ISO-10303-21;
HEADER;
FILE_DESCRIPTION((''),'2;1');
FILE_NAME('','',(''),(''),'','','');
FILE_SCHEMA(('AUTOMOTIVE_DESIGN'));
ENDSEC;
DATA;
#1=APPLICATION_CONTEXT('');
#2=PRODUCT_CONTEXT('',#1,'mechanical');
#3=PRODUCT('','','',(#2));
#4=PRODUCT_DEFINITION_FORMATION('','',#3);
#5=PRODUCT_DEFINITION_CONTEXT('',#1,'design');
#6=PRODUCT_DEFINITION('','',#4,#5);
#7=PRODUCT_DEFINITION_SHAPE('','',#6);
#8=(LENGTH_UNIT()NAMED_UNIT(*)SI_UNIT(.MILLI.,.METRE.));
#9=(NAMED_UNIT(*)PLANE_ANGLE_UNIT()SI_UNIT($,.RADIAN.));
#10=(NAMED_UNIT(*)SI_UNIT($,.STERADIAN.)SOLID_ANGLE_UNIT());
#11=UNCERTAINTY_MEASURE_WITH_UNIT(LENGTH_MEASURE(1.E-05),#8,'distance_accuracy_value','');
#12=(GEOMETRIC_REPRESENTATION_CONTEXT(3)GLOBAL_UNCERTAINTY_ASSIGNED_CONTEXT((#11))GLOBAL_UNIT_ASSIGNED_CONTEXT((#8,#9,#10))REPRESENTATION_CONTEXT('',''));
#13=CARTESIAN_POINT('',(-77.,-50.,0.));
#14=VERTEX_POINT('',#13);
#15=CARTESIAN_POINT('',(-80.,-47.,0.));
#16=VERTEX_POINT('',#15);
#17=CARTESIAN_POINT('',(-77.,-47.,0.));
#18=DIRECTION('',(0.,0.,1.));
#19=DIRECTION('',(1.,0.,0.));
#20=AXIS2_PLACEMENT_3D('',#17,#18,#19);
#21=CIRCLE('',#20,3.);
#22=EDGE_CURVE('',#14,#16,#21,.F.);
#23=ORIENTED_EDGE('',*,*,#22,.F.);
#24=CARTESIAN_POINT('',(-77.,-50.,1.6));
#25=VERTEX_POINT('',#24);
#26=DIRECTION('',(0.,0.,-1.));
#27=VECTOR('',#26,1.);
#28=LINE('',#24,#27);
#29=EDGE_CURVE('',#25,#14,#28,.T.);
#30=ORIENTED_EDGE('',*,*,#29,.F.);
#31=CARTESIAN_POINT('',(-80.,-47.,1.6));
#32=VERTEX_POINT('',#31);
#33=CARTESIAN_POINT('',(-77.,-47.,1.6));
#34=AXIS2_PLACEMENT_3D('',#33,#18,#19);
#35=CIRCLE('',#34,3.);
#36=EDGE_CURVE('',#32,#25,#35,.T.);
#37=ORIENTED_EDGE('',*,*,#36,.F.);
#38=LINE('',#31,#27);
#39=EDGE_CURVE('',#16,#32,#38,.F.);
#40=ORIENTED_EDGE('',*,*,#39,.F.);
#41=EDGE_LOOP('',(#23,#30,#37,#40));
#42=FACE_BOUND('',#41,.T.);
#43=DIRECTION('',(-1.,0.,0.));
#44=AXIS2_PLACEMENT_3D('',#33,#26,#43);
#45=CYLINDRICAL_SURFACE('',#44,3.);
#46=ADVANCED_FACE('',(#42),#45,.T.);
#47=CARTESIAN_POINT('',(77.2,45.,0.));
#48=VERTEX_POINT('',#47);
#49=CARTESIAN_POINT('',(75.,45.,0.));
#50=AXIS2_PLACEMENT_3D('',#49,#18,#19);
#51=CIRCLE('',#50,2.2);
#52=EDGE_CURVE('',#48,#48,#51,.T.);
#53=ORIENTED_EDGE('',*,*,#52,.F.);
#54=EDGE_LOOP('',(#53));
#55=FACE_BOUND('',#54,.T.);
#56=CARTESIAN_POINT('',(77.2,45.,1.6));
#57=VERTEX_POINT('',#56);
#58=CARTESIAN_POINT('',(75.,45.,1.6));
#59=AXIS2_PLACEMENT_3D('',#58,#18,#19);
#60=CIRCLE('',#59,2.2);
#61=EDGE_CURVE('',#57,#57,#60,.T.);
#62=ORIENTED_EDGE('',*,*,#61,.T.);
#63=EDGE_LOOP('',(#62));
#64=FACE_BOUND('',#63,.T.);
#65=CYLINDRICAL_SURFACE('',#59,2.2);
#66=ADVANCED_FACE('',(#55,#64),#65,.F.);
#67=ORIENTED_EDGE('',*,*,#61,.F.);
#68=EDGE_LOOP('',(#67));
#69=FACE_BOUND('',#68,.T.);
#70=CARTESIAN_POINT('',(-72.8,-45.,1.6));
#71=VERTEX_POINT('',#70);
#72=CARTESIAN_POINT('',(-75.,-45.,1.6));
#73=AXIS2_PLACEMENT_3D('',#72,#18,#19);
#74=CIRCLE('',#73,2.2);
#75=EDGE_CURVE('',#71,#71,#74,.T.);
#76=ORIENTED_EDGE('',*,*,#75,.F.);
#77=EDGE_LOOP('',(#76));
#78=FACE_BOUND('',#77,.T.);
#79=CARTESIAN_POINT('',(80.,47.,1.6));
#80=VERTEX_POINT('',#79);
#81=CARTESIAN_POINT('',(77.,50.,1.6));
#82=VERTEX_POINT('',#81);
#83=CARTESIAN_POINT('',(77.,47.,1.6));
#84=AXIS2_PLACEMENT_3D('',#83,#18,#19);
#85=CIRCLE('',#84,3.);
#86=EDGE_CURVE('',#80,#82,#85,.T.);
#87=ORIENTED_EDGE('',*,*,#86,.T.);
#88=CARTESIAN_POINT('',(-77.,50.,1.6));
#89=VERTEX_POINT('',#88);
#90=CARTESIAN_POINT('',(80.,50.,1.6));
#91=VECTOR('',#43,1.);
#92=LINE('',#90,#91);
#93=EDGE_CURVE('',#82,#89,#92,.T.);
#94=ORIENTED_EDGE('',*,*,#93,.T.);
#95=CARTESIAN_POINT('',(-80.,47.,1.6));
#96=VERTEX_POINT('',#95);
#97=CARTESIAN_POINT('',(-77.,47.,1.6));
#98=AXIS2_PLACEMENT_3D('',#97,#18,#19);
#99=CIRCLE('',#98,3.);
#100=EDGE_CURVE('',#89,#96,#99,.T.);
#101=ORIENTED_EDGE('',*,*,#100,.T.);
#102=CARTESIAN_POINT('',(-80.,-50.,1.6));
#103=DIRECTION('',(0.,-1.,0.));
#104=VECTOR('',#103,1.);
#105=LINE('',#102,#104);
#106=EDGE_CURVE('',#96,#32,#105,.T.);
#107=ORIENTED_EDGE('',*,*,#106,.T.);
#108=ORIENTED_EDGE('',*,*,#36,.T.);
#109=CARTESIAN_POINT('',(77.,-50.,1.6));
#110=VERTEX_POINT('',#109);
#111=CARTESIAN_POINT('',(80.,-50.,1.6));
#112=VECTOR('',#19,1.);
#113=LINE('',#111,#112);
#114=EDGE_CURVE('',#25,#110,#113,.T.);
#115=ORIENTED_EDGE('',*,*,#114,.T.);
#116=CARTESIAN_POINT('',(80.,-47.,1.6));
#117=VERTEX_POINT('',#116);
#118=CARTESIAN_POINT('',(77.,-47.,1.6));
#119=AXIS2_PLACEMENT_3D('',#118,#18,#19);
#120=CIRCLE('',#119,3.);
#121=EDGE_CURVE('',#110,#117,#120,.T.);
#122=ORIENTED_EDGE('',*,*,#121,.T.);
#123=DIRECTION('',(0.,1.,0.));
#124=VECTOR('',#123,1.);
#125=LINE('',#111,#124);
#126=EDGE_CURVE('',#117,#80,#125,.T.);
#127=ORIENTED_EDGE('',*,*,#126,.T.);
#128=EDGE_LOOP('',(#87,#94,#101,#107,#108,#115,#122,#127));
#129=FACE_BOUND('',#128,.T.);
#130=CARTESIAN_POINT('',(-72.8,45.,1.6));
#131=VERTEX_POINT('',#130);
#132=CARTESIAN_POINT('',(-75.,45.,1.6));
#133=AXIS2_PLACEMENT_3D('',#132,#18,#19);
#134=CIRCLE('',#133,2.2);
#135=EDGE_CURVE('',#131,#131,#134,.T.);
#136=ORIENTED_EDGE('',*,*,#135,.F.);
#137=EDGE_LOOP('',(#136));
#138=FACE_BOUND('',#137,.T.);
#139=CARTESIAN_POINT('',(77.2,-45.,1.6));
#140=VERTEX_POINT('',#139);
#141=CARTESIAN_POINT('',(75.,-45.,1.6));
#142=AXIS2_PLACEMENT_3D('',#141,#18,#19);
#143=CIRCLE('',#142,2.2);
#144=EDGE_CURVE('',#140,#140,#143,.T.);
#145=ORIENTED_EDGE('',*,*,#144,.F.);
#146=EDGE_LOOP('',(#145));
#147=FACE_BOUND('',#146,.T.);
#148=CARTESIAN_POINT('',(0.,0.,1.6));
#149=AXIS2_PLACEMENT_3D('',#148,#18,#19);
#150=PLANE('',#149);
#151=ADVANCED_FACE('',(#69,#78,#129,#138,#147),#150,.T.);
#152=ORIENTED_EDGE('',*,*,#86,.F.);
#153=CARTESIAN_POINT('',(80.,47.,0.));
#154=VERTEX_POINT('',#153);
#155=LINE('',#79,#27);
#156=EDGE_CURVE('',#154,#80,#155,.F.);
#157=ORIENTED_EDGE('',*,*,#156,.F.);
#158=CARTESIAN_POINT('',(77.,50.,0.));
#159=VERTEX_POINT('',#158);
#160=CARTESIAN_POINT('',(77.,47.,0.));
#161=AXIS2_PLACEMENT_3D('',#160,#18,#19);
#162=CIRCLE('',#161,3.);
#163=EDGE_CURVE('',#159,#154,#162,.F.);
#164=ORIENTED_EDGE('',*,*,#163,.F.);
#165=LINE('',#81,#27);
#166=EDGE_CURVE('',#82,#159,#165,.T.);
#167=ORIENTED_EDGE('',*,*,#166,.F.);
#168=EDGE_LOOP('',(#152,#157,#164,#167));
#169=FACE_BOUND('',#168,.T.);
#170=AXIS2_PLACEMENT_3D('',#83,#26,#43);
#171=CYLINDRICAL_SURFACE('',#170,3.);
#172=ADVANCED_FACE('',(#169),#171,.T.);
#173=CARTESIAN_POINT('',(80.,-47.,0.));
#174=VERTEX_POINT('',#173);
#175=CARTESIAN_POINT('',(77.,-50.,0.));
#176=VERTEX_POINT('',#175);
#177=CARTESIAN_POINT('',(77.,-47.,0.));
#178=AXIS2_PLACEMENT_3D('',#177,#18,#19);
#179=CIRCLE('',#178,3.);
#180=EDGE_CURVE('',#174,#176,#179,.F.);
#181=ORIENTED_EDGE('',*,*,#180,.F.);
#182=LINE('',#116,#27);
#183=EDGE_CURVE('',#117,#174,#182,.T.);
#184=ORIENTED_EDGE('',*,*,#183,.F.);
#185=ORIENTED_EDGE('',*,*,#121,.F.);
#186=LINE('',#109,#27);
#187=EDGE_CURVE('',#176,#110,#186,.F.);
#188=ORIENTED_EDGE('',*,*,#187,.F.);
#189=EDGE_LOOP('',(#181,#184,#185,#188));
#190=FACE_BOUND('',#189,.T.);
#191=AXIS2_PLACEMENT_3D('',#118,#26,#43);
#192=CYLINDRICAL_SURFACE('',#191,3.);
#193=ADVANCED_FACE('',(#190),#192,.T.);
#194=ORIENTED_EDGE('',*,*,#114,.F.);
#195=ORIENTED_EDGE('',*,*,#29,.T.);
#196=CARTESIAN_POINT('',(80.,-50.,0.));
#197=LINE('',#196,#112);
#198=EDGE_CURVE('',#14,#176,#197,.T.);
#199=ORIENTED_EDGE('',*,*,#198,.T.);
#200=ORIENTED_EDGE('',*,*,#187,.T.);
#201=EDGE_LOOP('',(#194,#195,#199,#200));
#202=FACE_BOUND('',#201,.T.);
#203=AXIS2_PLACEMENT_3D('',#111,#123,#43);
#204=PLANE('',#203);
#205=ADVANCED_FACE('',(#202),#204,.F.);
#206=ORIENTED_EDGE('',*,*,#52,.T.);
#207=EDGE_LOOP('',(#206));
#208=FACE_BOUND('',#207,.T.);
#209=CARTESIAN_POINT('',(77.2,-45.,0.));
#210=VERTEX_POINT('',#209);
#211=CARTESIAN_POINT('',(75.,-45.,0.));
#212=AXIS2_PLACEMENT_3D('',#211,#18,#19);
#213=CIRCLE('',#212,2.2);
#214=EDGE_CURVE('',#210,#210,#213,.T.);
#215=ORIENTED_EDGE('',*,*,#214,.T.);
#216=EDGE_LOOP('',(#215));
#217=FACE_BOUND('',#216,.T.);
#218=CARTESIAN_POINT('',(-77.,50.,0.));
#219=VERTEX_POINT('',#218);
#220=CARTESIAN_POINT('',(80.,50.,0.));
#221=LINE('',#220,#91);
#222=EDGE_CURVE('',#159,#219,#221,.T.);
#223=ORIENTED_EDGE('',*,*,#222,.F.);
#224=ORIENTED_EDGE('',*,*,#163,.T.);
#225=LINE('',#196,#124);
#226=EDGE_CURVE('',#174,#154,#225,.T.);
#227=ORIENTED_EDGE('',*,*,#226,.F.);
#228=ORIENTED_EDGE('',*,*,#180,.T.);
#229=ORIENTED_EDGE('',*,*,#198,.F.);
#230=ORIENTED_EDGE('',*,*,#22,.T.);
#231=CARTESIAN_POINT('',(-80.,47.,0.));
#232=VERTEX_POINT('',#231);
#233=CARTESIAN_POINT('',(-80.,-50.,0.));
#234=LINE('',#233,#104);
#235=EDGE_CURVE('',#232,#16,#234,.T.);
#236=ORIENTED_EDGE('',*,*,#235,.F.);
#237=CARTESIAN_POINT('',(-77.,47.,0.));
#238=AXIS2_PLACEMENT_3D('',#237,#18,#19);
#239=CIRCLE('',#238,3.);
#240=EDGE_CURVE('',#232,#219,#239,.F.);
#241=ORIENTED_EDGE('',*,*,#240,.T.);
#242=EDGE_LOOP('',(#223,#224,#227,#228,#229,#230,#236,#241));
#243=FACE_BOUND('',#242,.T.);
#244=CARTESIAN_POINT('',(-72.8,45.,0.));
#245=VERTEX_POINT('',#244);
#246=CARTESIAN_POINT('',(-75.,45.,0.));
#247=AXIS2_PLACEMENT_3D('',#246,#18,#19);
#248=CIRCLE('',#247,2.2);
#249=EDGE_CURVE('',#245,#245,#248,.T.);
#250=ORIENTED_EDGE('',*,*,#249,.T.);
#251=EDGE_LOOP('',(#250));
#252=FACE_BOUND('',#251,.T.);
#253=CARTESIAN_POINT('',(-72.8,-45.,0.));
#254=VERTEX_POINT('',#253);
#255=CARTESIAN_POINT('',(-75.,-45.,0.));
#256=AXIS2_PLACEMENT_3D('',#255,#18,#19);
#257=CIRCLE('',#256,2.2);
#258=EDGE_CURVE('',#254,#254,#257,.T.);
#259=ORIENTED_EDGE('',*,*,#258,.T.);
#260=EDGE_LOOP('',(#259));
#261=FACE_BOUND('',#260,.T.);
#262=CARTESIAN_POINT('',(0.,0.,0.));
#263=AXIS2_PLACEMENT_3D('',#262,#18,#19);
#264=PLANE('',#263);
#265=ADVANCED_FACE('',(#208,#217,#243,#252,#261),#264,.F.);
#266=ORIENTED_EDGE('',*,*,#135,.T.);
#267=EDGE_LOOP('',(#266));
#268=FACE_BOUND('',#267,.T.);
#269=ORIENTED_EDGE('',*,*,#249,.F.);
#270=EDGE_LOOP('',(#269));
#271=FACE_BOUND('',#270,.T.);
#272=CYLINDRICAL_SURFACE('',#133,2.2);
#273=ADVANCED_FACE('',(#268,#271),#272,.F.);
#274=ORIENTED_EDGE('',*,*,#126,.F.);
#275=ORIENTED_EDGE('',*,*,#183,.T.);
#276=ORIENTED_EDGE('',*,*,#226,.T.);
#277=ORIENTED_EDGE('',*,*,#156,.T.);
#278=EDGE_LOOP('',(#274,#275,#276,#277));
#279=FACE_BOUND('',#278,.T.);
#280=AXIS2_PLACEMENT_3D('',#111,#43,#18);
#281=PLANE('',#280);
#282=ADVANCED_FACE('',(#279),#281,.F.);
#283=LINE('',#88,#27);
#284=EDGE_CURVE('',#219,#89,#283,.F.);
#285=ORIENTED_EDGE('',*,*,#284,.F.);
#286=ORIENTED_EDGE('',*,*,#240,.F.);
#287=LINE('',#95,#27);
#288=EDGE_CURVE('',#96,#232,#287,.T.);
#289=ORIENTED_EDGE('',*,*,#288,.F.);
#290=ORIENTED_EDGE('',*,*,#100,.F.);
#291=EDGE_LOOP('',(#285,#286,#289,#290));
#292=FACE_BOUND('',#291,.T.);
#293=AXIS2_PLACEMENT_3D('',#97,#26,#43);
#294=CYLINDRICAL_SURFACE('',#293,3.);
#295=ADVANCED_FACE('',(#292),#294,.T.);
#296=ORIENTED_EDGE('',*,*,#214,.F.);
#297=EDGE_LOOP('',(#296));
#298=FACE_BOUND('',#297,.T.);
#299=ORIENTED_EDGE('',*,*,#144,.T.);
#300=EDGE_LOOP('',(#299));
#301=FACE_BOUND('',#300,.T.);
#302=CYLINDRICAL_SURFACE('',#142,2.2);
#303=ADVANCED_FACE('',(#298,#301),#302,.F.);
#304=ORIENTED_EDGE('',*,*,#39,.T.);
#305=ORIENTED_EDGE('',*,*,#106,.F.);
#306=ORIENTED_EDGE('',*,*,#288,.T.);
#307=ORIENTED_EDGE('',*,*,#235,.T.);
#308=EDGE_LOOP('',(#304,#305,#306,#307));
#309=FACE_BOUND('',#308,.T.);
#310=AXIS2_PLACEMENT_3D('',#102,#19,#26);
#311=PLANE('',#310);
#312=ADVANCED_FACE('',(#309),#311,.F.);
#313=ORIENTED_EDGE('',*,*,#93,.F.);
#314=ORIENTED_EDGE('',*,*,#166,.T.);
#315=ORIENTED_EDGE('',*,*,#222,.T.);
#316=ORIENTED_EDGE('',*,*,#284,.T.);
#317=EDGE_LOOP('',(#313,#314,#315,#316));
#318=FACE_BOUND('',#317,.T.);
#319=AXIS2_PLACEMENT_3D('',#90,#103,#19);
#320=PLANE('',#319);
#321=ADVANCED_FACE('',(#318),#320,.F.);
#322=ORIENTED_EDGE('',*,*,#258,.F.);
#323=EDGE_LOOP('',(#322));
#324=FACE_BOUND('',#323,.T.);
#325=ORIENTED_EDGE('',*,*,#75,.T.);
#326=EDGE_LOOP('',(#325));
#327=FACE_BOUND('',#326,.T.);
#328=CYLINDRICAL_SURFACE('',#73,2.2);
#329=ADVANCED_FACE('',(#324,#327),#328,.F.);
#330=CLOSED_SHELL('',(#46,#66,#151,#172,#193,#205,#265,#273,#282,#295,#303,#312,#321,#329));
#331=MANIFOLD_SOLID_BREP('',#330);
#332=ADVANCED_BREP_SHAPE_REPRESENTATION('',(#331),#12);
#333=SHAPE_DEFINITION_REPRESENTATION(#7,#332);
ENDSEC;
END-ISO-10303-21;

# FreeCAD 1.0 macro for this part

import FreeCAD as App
import Part
import Sketcher
from FreeCAD import Vector


def edges_at(feature, points):
    """Names of the edges that pass closest to the given points."""
    edges = feature.Shape.Edges
    near = lambda p: min(range(len(edges)), key=lambda i: edges[i].distToShape(Part.Vertex(*p))[0])
    return sorted({f"Edge{near(p) + 1}" for p in points})


def add_polygon(sketch, points):
    """Adds a closed chain of lines whose ends are joined by coincident constraints."""
    first, n = sketch.GeometryCount, len(points)
    for a, b in zip(points, points[1:] + points[:1]):
        sketch.addGeometry(Part.LineSegment(App.Vector(*a, 0), App.Vector(*b, 0)), False)
    for i in range(n):
        sketch.addConstraint(Sketcher.Constraint("Coincident", first + i, 2, first + (i + 1) % n, 1))

doc = App.newDocument("Part")
params = doc.addObject("Spreadsheet::Sheet", "Params")
for row, (alias, value) in enumerate([
    ("sketch1_width", "160 mm"),
    ("sketch1_height", "100 mm"),
    ("pad1_length", "1.6 mm"),
    ("fillet_radius", "3 mm"),
    ("sketch2_diameter", "4.4 mm"),
    ("hole_diameter", "4.4 mm"),
    ("hole_depth", "6 mm"),
], start=1):
    params.set(f"A{row}", alias)
    params.set(f"B{row}", "=" + value)
    params.setAlias(f"B{row}", alias)

body = doc.addObject("PartDesign::Body", "Body")

# Sketch on XY plane
sketch1 = body.newObject("Sketcher::SketchObject", "Sketch")
sketch1.AttachmentSupport = (doc.getObject("XY_Plane"), [""])
sketch1.MapMode = "FlatFace"
add_polygon(sketch1, [(-80, 50), (-80, -50), (80, -50), (80, 50)])  # lines 0-3
sketch1.addConstraint(Sketcher.Constraint("Vertical", 0))
sketch1.addConstraint(Sketcher.Constraint("Horizontal", 1))
sketch1.addConstraint(Sketcher.Constraint("Vertical", 2))
sketch1.addConstraint(Sketcher.Constraint("Horizontal", 3))
sketch1.addConstraint(Sketcher.Constraint("Symmetric", 0, 2, 2, 2, -1, 1))
sketch1.addConstraint(Sketcher.Constraint("DistanceX", 1, 1, 1, 2, 160.0))
sketch1.addConstraint(Sketcher.Constraint("DistanceY", 0, 2, 0, 1, 100.0))
sketch1.setExpression("Constraints[9]", "Params.sketch1_width")
sketch1.setExpression("Constraints[10]", "Params.sketch1_height")
pad1 = body.newObject("PartDesign::Pad", "Pad")
pad1.Profile = sketch1
pad1.setExpression("Length", "Params.pad1_length")
doc.recompute()

fillet = body.newObject("PartDesign::Fillet", "Fillet")
fillet.Base = (pad1, edges_at(pad1, [
    (-80, 50, 0.8),
    (80, 50, 0.8),
    (80, -50, 0.8),
    (-80, -50, 0.8),
]))
fillet.setExpression("Radius", "Params.fillet_radius")

# Sketch on XY plane
sketch2 = body.newObject("Sketcher::SketchObject", "Sketch001")
sketch2.AttachmentSupport = (doc.getObject("XY_Plane"), [""])
sketch2.MapMode = "FlatFace"
sketch2.AttachmentOffset = App.Placement(Vector(0, 0, 1.6), App.Rotation())
sketch2.addGeometry(Part.Circle(Vector(-75, -45, 0), Vector(0, 0, 1), 2.2), False)
sketch2.addGeometry(Part.Circle(Vector(-75, 45, 0), Vector(0, 0, 1), 2.2), False)
sketch2.addGeometry(Part.Circle(Vector(75, 45, 0), Vector(0, 0, 1), 2.2), False)
sketch2.addGeometry(Part.Circle(Vector(75, -45, 0), Vector(0, 0, 1), 2.2), False)
sketch2.addConstraint(Sketcher.Constraint("Equal", 0, 1))
sketch2.addConstraint(Sketcher.Constraint("Equal", 1, 2))
sketch2.addConstraint(Sketcher.Constraint("Equal", 2, 3))
sketch2.addConstraint(Sketcher.Constraint("Symmetric", 0, 3, 2, 3, -1, 1))
sketch2.addConstraint(Sketcher.Constraint("Symmetric", 1, 3, 3, 3, -1, 1))
sketch2.addConstraint(Sketcher.Constraint("Symmetric", 1, 3, 2, 3, -2))
sketch2.addConstraint(Sketcher.Constraint("Diameter", 0, 4.4))
sketch2.addConstraint(Sketcher.Constraint("DistanceX", 0, 3, -1, 1, 75.0))
sketch2.addConstraint(Sketcher.Constraint("DistanceY", 0, 3, -1, 1, 45.0))
sketch2.setExpression("Constraints[6]", "Params.sketch2_diameter")
doc.recompute()
hole = body.newObject("PartDesign::Hole", "Hole")
hole.Profile = sketch2
hole.ThreadType = "None"
hole.setExpression("Diameter", "Params.hole_diameter")
hole.DepthType = "Dimension"
hole.setExpression("Depth", "Params.hole_depth")
hole.DrillPoint = "Flat"

doc.recompute()
